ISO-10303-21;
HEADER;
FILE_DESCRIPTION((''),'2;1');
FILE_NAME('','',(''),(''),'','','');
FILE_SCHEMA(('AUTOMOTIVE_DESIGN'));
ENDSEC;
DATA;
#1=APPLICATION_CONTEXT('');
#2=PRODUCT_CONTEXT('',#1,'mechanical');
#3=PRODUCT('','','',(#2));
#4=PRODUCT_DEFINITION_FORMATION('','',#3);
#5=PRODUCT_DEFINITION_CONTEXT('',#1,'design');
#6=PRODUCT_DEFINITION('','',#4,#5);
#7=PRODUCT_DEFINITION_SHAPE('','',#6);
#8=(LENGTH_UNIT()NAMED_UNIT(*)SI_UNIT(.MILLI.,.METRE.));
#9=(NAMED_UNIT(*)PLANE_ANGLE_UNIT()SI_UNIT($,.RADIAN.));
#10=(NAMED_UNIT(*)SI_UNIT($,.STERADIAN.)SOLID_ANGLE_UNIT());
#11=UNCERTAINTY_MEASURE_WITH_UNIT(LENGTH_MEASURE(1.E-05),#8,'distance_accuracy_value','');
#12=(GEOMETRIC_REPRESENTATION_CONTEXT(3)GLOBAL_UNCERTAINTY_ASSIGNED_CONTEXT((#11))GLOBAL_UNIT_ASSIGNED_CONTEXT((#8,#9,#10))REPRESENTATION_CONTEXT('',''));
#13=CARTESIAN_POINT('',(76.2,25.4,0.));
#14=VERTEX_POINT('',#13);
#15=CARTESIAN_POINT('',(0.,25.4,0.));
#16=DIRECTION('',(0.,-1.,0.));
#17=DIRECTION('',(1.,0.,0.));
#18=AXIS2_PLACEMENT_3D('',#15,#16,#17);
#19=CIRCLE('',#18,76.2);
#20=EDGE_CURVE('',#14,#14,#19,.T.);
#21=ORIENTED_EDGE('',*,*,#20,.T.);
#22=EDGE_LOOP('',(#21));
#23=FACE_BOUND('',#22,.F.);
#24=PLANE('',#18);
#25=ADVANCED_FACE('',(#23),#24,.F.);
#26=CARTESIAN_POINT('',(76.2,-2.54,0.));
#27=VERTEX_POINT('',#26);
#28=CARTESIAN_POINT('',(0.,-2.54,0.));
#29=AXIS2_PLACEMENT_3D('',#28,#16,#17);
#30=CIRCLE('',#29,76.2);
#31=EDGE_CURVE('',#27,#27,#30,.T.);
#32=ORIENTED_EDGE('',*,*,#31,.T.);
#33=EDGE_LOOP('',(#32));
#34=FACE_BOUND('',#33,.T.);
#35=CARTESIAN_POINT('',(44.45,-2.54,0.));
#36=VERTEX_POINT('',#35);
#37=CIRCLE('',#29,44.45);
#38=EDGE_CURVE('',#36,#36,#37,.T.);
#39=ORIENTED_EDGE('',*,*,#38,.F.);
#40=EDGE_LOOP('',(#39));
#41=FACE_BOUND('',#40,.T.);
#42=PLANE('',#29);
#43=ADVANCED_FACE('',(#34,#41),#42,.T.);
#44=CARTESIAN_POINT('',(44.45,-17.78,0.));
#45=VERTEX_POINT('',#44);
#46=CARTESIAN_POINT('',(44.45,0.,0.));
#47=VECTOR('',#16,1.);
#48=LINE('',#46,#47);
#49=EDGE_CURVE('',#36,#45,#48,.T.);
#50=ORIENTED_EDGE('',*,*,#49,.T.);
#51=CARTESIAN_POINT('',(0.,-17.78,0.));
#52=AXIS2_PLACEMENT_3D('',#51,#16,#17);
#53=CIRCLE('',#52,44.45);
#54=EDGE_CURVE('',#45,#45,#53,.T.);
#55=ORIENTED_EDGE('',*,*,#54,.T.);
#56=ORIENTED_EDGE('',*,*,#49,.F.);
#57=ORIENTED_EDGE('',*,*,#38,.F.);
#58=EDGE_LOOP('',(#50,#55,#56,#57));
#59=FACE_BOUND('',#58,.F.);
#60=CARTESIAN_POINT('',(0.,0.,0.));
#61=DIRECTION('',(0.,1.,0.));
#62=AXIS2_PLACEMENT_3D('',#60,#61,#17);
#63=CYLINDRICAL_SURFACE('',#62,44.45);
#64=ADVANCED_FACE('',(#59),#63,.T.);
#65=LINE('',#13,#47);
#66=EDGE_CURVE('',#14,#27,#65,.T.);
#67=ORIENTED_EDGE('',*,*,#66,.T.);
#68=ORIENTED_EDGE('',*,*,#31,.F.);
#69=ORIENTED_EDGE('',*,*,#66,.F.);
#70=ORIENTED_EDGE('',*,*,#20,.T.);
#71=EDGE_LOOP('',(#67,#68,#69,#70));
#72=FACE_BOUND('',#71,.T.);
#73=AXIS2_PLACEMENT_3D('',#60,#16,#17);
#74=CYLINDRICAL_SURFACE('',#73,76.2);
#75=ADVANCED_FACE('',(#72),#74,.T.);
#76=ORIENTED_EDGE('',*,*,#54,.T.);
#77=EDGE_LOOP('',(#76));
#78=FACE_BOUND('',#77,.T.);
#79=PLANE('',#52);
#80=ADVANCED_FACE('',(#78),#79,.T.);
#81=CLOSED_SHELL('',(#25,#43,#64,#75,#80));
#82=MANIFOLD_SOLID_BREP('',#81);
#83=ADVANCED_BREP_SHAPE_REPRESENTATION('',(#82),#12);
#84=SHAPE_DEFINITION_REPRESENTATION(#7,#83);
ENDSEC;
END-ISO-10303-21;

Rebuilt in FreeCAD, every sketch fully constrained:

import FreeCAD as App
import Part
import Sketcher

V = App.Vector
Q = App.Units.Quantity

doc = App.newDocument("Part")
body = doc.addObject("PartDesign::Body", "Body")

sketch1 = body.newObject("Sketcher::SketchObject", "Sketch")
sketch1.AttachmentSupport = (doc.getObject("XZ_Plane"), [""])
sketch1.MapMode = "FlatFace"
sketch1.addGeometry([
    Part.Circle(V(0, 0, 0), V(0, 0, 1), 76),
    Part.Circle(V(0, 0, 0), V(0, 0, 1), 44),
], False)
sketch1.addConstraint([
    Sketcher.Constraint("Coincident", 0, 3, -1, 1),
    Sketcher.Constraint("Coincident", 1, 3, -1, 1),
    Sketcher.Constraint("Diameter", 0, Q("6 in")),
    Sketcher.Constraint("Diameter", 1, Q("3.5 in")),
])
pad1 = body.newObject("PartDesign::Pad", "Pad")
pad1.Profile = sketch1
pad1.Length = Q("0.1 in")

sketch2 = body.newObject("Sketcher::SketchObject", "Sketch001")
sketch2.AttachmentSupport = (doc.getObject("XZ_Plane"), [""])
sketch2.MapMode = "FlatFace"
sketch2.addGeometry(Part.Circle(V(0, 0, 0), V(0, 0, 1), 44), False)
sketch2.addConstraint([
    Sketcher.Constraint("Coincident", 0, 3, -1, 1),
    Sketcher.Constraint("Diameter", 0, Q("3.5 in")),
])
pad2 = body.newObject("PartDesign::Pad", "Pad001")
pad2.Profile = sketch2
pad2.Length = Q("0.7 in")

sketch3 = body.newObject("Sketcher::SketchObject", "Sketch002")
sketch3.AttachmentSupport = (doc.getObject("XZ_Plane"), [""])
sketch3.MapMode = "FlatFace"
sketch3.addGeometry(Part.Circle(V(0, 0, 0), V(0, 0, 1), 76), False)
sketch3.addConstraint([
    Sketcher.Constraint("Coincident", 0, 3, -1, 1),
    Sketcher.Constraint("Diameter", 0, Q("6 in")),
])
pad3 = body.newObject("PartDesign::Pad", "Pad002")
pad3.Profile = sketch3
pad3.Length = Q("1 in")
pad3.Reversed = True

doc.recompute()
